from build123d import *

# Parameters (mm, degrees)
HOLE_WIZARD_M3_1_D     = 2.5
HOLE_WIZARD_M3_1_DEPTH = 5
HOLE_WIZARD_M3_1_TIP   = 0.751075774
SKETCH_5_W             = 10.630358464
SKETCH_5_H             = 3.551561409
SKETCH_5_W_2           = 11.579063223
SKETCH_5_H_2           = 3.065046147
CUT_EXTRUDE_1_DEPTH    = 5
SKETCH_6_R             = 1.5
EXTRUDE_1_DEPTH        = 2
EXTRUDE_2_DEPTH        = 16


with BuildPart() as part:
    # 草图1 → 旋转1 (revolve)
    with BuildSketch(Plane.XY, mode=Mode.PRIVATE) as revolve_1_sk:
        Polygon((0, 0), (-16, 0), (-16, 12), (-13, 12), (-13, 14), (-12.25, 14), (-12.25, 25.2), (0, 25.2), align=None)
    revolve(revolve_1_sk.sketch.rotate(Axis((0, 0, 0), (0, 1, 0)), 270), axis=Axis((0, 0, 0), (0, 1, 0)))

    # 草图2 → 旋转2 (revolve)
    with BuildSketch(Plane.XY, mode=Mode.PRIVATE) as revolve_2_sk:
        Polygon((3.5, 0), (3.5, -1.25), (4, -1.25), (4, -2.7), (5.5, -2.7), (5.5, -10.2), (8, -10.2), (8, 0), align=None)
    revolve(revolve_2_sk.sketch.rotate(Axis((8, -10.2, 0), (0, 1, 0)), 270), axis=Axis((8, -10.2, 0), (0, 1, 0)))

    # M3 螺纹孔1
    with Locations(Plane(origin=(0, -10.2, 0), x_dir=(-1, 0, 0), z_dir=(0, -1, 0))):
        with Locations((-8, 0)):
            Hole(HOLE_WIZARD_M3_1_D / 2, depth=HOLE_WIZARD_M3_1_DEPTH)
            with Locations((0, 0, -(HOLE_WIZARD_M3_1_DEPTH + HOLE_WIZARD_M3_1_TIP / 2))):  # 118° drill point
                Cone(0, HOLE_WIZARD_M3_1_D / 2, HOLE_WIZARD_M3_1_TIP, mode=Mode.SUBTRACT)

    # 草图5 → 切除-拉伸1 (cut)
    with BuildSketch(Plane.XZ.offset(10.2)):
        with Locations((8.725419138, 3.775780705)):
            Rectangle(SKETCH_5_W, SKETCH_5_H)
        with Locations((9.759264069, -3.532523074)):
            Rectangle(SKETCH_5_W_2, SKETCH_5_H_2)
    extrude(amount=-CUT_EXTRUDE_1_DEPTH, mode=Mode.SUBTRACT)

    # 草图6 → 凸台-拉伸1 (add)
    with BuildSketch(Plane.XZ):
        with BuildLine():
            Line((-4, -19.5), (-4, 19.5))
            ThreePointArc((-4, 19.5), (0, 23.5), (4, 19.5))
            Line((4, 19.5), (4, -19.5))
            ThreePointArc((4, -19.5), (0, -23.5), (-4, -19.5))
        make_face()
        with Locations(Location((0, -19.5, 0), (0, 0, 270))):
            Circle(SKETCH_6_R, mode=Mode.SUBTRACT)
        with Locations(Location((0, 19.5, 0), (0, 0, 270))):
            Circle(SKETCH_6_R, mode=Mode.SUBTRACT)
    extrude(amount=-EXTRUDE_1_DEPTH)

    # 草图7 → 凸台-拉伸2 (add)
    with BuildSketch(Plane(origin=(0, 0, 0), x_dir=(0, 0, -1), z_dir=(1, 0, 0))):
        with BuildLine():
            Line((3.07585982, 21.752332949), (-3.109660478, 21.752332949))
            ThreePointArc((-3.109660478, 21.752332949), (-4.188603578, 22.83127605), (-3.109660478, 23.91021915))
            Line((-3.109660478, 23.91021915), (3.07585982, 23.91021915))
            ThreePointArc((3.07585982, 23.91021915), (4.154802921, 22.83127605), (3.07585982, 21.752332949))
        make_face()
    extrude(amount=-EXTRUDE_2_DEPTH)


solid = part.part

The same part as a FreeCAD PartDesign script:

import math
import FreeCAD as App
import Part
import Sketcher

V = App.Vector


def add_polygon(sketch, points):
    """Adds a closed chain of lines whose ends are joined by coincident constraints."""
    first, n = sketch.GeometryCount, len(points)
    for a, b in zip(points, points[1:] + points[:1]):
        sketch.addGeometry(Part.LineSegment(App.Vector(*a, 0), App.Vector(*b, 0)), False)
    for i in range(n):
        sketch.addConstraint(Sketcher.Constraint("Coincident", first + i, 2, first + (i + 1) % n, 1))

doc = App.newDocument("Part")
body = doc.addObject("PartDesign::Body", "Body")

sketch1 = doc.addObject("Sketcher::SketchObject", "Sketch")
body.addObject(sketch1)
sketch1.AttachmentSupport = (doc.XY_Plane, [""])
sketch1.MapMode = "FlatFace"
add_polygon(sketch1, [(-16, 0), (0, 0), (0, 25.2), (-12.2, 25.2), (-12.2, 14), (-13, 14), (-13, 12), (-16, 12)])
sketch1.addConstraint(Sketcher.Constraint("Horizontal", 0))
sketch1.addConstraint(Sketcher.Constraint("Vertical", 1))
sketch1.addConstraint(Sketcher.Constraint("Horizontal", 2))
sketch1.addConstraint(Sketcher.Constraint("Vertical", 3))
sketch1.addConstraint(Sketcher.Constraint("Horizontal", 4))
sketch1.addConstraint(Sketcher.Constraint("Vertical", 5))
sketch1.addConstraint(Sketcher.Constraint("Horizontal", 6))
sketch1.addConstraint(Sketcher.Constraint("Vertical", 7))
sketch1.addConstraint(Sketcher.Constraint("Coincident", 0, 2, -1, 1))
sketch1.addConstraint(Sketcher.Constraint("DistanceX", 0, 1, 0, 2, 16.0))
sketch1.addConstraint(Sketcher.Constraint("DistanceX", 6, 2, 6, 1, 3.0))
sketch1.addConstraint(Sketcher.Constraint("DistanceY", 5, 2, 5, 1, 2.0))
sketch1.addConstraint(Sketcher.Constraint("DistanceY", 7, 2, 7, 1, 12.0))
sketch1.addConstraint(Sketcher.Constraint("DistanceY", 1, 1, 1, 2, 25.2))
sketch1.addConstraint(Sketcher.Constraint("DistanceX", 2, 2, 2, 1, 12.25))
revolution = doc.addObject("PartDesign::Revolution", "Revolution")
body.addObject(revolution)
revolution.Profile = sketch1
revolution.ReferenceAxis = (sketch1, ["V_Axis"])
revolution.Angle = 360

sketch2 = doc.addObject("Sketcher::SketchObject", "Sketch001")
body.addObject(sketch2)
sketch2.AttachmentSupport = (doc.XY_Plane, [""])
sketch2.MapMode = "FlatFace"
add_polygon(sketch2, [(3.5, 0), (3.5, -1.2), (4, -1.2), (4, -2.7), (5.5, -2.7), (5.5, -10.2), (8, -10.2), (8, 0)])
sketch2.addGeometry(Part.LineSegment(V(8, -10.2, 0), V(8, 0, 0)), True)
sketch2.addConstraint(Sketcher.Constraint("Vertical", 0))
sketch2.addConstraint(Sketcher.Constraint("Horizontal", 1))
sketch2.addConstraint(Sketcher.Constraint("Vertical", 2))
sketch2.addConstraint(Sketcher.Constraint("Horizontal", 3))
sketch2.addConstraint(Sketcher.Constraint("Vertical", 4))
sketch2.addConstraint(Sketcher.Constraint("Horizontal", 5))
sketch2.addConstraint(Sketcher.Constraint("Vertical", 6))
sketch2.addConstraint(Sketcher.Constraint("Horizontal", 7))
sketch2.addConstraint(Sketcher.Constraint("Vertical", 8))
sketch2.addConstraint(Sketcher.Constraint("Coincident", 8, 1, 5, 2))
sketch2.addConstraint(Sketcher.Constraint("PointOnObject", 6, 2, -1))
sketch2.addConstraint(Sketcher.Constraint("PointOnObject", 8, 2, -1))
sketch2.addConstraint(Sketcher.Constraint("DistanceX", 1, 1, 1, 2, 0.5))
sketch2.addConstraint(Sketcher.Constraint("DistanceX", 3, 1, 3, 2, 1.5))
sketch2.addConstraint(Sketcher.Constraint("DistanceX", 5, 1, 5, 2, 2.5))
sketch2.addConstraint(Sketcher.Constraint("DistanceY", 4, 2, 4, 1, 7.5))
sketch2.addConstraint(Sketcher.Constraint("DistanceY", 6, 1, 6, 2, 10.2))
sketch2.addConstraint(Sketcher.Constraint("DistanceX", -1, 1, 1, 2, 4.0))
sketch2.addConstraint(Sketcher.Constraint("DistanceY", 0, 2, 0, 1, 1.25))
revolution2 = doc.addObject("PartDesign::Revolution", "Revolution001")
body.addObject(revolution2)
revolution2.Profile = sketch2
revolution2.ReferenceAxis = (sketch2, ["Axis0"])
revolution2.Angle = 360

sketch3 = doc.addObject("Sketcher::SketchObject", "Sketch002")
body.addObject(sketch3)
sketch3.AttachmentSupport = (doc.XZ_Plane, [""])
sketch3.MapMode = "FlatFace"
sketch3.AttachmentOffset = App.Placement(V(0, 0, 10.2), App.Rotation())
sketch3.addGeometry(Part.Circle(V(8, 0, 0), V(0, 0, 1), 1.2), False)
sketch3.addConstraint(Sketcher.Constraint("PointOnObject", 0, 3, -1))
sketch3.addConstraint(Sketcher.Constraint("Diameter", 0, 2.5))
sketch3.addConstraint(Sketcher.Constraint("DistanceX", -1, 1, 0, 3, 8.0))
doc.recompute()
hole = doc.addObject("PartDesign::Hole", "Hole")
body.addObject(hole)
hole.Profile = sketch3
hole.ThreadType = "None"
hole.Diameter = 2.5
hole.DepthType = "Dimension"
hole.Depth = 5
hole.DrillPoint = "Angled"
hole.DrillPointAngle = 118

sketch4 = doc.addObject("Sketcher::SketchObject", "Sketch003")
body.addObject(sketch4)
sketch4.AttachmentSupport = (doc.XZ_Plane, [""])
sketch4.MapMode = "FlatFace"
sketch4.AttachmentOffset = App.Placement(V(0, 0, 10.2), App.Rotation())
add_polygon(sketch4, [(3.4, 5.6), (3.4, 2), (14, 2), (14, 5.6)])
add_polygon(sketch4, [(4, -2), (4, -5.1), (15.5, -5.1), (15.5, -2)])
sketch4.addConstraint(Sketcher.Constraint("Vertical", 0))
sketch4.addConstraint(Sketcher.Constraint("Horizontal", 1))
sketch4.addConstraint(Sketcher.Constraint("Vertical", 2))
sketch4.addConstraint(Sketcher.Constraint("Horizontal", 3))
sketch4.addConstraint(Sketcher.Constraint("Vertical", 4))
sketch4.addConstraint(Sketcher.Constraint("Horizontal", 5))
sketch4.addConstraint(Sketcher.Constraint("Vertical", 6))
sketch4.addConstraint(Sketcher.Constraint("Horizontal", 7))
sketch4.addConstraint(Sketcher.Constraint("DistanceY", -1, 1, 0, 2, 2.0))
sketch4.addConstraint(Sketcher.Constraint("DistanceY", 6, 2, -1, 1, 2.0))
sketch4.addConstraint(Sketcher.Constraint("DistanceX", 1, 1, 1, 2, 10.630358))
sketch4.addConstraint(Sketcher.Constraint("DistanceY", 0, 2, 0, 1, 3.551561))
sketch4.addConstraint(Sketcher.Constraint("DistanceX", -1, 1, 1, 2, 14.040598))
sketch4.addConstraint(Sketcher.Constraint("DistanceX", 5, 1, 5, 2, 11.579063))
sketch4.addConstraint(Sketcher.Constraint("DistanceY", 4, 2, 4, 1, 3.065046))
sketch4.addConstraint(Sketcher.Constraint("DistanceX", -1, 1, 4, 2, 3.969732))
pocket1 = doc.addObject("PartDesign::Pocket", "Pocket")
body.addObject(pocket1)
pocket1.Profile = sketch4
pocket1.Length = 5

sketch5 = doc.addObject("Sketcher::SketchObject", "Sketch004")
body.addObject(sketch5)
sketch5.AttachmentSupport = (doc.XZ_Plane, [""])
sketch5.MapMode = "FlatFace"
sketch5.addGeometry(Part.LineSegment(V(-4, 19.5, 0), V(-4, -19.5, 0)), False)
sketch5.addGeometry(Part.ArcOfCircle(Part.Circle(V(0, -19.5, 0), V(0, 0, 1), 4), math.radians(180), math.radians(360)), False)
sketch5.addGeometry(Part.LineSegment(V(4, -19.5, 0), V(4, 19.5, 0)), False)
sketch5.addGeometry(Part.ArcOfCircle(Part.Circle(V(0, 19.5, 0), V(0, 0, 1), 4), math.radians(0), math.radians(180)), False)
sketch5.addGeometry(Part.Circle(V(0, -19.5, 0), V(0, 0, 1), 1.5), False)
sketch5.addGeometry(Part.Circle(V(0, 19.5, 0), V(0, 0, 1), 1.5), False)
sketch5.addConstraint(Sketcher.Constraint("Tangent", 0, 2, 1, 1))
sketch5.addConstraint(Sketcher.Constraint("Tangent", 1, 2, 2, 1))
sketch5.addConstraint(Sketcher.Constraint("Tangent", 2, 2, 3, 1))
sketch5.addConstraint(Sketcher.Constraint("Tangent", 3, 2, 0, 1))
sketch5.addConstraint(Sketcher.Constraint("Vertical", 0))
sketch5.addConstraint(Sketcher.Constraint("Vertical", 2))
sketch5.addConstraint(Sketcher.Constraint("Coincident", 4, 3, 1, 3))
sketch5.addConstraint(Sketcher.Constraint("Coincident", 5, 3, 3, 3))
sketch5.addConstraint(Sketcher.Constraint("Equal", 4, 5))
sketch5.addConstraint(Sketcher.Constraint("Symmetric", 1, 3, 3, 3, -1, 1))
sketch5.addConstraint(Sketcher.Constraint("Diameter", 4, 3.0))
sketch5.addConstraint(Sketcher.Constraint("Radius", 1, 4.0))
sketch5.addConstraint(Sketcher.Constraint("DistanceY", 0, 2, 0, 1, 39.0))
pad1 = doc.addObject("PartDesign::Pad", "Pad")
body.addObject(pad1)
pad1.Profile = sketch5
pad1.Length = 2
pad1.Reversed = True

sketch6 = doc.addObject("Sketcher::SketchObject", "Sketch005")
body.addObject(sketch6)
sketch6.AttachmentSupport = (doc.YZ_Plane, [""])
sketch6.MapMode = "FlatFace"
sketch6.addGeometry(Part.LineSegment(V(21.8, 3.1, 0), V(21.8, -3.1, 0)), False)
sketch6.addGeometry(Part.ArcOfCircle(Part.Circle(V(22.8, -3.1, 0), V(0, 0, 1), 1.1), math.radians(180), math.radians(360)), False)
sketch6.addGeometry(Part.LineSegment(V(23.9, -3.1, 0), V(23.9, 3.1, 0)), False)
sketch6.addGeometry(Part.ArcOfCircle(Part.Circle(V(22.8, 3.1, 0), V(0, 0, 1), 1.1), math.radians(0), math.radians(180)), False)
sketch6.addConstraint(Sketcher.Constraint("Tangent", 0, 2, 1, 1))
sketch6.addConstraint(Sketcher.Constraint("Tangent", 1, 2, 2, 1))
sketch6.addConstraint(Sketcher.Constraint("Tangent", 2, 2, 3, 1))
sketch6.addConstraint(Sketcher.Constraint("Tangent", 3, 2, 0, 1))
sketch6.addConstraint(Sketcher.Constraint("Vertical", 0))
sketch6.addConstraint(Sketcher.Constraint("Vertical", 2))
sketch6.addConstraint(Sketcher.Constraint("Radius", 1, 1.078943))
sketch6.addConstraint(Sketcher.Constraint("DistanceY", 0, 2, 0, 1, 6.18552))
sketch6.addConstraint(Sketcher.Constraint("DistanceY", 1, 3, -1, 1, 3.07586))
sketch6.addConstraint(Sketcher.Constraint("DistanceX", -1, 1, 1, 2, 23.910219))
pad2 = doc.addObject("PartDesign::Pad", "Pad001")
body.addObject(pad2)
pad2.Profile = sketch6
pad2.Length = 16
pad2.Reversed = True

doc.recompute()
